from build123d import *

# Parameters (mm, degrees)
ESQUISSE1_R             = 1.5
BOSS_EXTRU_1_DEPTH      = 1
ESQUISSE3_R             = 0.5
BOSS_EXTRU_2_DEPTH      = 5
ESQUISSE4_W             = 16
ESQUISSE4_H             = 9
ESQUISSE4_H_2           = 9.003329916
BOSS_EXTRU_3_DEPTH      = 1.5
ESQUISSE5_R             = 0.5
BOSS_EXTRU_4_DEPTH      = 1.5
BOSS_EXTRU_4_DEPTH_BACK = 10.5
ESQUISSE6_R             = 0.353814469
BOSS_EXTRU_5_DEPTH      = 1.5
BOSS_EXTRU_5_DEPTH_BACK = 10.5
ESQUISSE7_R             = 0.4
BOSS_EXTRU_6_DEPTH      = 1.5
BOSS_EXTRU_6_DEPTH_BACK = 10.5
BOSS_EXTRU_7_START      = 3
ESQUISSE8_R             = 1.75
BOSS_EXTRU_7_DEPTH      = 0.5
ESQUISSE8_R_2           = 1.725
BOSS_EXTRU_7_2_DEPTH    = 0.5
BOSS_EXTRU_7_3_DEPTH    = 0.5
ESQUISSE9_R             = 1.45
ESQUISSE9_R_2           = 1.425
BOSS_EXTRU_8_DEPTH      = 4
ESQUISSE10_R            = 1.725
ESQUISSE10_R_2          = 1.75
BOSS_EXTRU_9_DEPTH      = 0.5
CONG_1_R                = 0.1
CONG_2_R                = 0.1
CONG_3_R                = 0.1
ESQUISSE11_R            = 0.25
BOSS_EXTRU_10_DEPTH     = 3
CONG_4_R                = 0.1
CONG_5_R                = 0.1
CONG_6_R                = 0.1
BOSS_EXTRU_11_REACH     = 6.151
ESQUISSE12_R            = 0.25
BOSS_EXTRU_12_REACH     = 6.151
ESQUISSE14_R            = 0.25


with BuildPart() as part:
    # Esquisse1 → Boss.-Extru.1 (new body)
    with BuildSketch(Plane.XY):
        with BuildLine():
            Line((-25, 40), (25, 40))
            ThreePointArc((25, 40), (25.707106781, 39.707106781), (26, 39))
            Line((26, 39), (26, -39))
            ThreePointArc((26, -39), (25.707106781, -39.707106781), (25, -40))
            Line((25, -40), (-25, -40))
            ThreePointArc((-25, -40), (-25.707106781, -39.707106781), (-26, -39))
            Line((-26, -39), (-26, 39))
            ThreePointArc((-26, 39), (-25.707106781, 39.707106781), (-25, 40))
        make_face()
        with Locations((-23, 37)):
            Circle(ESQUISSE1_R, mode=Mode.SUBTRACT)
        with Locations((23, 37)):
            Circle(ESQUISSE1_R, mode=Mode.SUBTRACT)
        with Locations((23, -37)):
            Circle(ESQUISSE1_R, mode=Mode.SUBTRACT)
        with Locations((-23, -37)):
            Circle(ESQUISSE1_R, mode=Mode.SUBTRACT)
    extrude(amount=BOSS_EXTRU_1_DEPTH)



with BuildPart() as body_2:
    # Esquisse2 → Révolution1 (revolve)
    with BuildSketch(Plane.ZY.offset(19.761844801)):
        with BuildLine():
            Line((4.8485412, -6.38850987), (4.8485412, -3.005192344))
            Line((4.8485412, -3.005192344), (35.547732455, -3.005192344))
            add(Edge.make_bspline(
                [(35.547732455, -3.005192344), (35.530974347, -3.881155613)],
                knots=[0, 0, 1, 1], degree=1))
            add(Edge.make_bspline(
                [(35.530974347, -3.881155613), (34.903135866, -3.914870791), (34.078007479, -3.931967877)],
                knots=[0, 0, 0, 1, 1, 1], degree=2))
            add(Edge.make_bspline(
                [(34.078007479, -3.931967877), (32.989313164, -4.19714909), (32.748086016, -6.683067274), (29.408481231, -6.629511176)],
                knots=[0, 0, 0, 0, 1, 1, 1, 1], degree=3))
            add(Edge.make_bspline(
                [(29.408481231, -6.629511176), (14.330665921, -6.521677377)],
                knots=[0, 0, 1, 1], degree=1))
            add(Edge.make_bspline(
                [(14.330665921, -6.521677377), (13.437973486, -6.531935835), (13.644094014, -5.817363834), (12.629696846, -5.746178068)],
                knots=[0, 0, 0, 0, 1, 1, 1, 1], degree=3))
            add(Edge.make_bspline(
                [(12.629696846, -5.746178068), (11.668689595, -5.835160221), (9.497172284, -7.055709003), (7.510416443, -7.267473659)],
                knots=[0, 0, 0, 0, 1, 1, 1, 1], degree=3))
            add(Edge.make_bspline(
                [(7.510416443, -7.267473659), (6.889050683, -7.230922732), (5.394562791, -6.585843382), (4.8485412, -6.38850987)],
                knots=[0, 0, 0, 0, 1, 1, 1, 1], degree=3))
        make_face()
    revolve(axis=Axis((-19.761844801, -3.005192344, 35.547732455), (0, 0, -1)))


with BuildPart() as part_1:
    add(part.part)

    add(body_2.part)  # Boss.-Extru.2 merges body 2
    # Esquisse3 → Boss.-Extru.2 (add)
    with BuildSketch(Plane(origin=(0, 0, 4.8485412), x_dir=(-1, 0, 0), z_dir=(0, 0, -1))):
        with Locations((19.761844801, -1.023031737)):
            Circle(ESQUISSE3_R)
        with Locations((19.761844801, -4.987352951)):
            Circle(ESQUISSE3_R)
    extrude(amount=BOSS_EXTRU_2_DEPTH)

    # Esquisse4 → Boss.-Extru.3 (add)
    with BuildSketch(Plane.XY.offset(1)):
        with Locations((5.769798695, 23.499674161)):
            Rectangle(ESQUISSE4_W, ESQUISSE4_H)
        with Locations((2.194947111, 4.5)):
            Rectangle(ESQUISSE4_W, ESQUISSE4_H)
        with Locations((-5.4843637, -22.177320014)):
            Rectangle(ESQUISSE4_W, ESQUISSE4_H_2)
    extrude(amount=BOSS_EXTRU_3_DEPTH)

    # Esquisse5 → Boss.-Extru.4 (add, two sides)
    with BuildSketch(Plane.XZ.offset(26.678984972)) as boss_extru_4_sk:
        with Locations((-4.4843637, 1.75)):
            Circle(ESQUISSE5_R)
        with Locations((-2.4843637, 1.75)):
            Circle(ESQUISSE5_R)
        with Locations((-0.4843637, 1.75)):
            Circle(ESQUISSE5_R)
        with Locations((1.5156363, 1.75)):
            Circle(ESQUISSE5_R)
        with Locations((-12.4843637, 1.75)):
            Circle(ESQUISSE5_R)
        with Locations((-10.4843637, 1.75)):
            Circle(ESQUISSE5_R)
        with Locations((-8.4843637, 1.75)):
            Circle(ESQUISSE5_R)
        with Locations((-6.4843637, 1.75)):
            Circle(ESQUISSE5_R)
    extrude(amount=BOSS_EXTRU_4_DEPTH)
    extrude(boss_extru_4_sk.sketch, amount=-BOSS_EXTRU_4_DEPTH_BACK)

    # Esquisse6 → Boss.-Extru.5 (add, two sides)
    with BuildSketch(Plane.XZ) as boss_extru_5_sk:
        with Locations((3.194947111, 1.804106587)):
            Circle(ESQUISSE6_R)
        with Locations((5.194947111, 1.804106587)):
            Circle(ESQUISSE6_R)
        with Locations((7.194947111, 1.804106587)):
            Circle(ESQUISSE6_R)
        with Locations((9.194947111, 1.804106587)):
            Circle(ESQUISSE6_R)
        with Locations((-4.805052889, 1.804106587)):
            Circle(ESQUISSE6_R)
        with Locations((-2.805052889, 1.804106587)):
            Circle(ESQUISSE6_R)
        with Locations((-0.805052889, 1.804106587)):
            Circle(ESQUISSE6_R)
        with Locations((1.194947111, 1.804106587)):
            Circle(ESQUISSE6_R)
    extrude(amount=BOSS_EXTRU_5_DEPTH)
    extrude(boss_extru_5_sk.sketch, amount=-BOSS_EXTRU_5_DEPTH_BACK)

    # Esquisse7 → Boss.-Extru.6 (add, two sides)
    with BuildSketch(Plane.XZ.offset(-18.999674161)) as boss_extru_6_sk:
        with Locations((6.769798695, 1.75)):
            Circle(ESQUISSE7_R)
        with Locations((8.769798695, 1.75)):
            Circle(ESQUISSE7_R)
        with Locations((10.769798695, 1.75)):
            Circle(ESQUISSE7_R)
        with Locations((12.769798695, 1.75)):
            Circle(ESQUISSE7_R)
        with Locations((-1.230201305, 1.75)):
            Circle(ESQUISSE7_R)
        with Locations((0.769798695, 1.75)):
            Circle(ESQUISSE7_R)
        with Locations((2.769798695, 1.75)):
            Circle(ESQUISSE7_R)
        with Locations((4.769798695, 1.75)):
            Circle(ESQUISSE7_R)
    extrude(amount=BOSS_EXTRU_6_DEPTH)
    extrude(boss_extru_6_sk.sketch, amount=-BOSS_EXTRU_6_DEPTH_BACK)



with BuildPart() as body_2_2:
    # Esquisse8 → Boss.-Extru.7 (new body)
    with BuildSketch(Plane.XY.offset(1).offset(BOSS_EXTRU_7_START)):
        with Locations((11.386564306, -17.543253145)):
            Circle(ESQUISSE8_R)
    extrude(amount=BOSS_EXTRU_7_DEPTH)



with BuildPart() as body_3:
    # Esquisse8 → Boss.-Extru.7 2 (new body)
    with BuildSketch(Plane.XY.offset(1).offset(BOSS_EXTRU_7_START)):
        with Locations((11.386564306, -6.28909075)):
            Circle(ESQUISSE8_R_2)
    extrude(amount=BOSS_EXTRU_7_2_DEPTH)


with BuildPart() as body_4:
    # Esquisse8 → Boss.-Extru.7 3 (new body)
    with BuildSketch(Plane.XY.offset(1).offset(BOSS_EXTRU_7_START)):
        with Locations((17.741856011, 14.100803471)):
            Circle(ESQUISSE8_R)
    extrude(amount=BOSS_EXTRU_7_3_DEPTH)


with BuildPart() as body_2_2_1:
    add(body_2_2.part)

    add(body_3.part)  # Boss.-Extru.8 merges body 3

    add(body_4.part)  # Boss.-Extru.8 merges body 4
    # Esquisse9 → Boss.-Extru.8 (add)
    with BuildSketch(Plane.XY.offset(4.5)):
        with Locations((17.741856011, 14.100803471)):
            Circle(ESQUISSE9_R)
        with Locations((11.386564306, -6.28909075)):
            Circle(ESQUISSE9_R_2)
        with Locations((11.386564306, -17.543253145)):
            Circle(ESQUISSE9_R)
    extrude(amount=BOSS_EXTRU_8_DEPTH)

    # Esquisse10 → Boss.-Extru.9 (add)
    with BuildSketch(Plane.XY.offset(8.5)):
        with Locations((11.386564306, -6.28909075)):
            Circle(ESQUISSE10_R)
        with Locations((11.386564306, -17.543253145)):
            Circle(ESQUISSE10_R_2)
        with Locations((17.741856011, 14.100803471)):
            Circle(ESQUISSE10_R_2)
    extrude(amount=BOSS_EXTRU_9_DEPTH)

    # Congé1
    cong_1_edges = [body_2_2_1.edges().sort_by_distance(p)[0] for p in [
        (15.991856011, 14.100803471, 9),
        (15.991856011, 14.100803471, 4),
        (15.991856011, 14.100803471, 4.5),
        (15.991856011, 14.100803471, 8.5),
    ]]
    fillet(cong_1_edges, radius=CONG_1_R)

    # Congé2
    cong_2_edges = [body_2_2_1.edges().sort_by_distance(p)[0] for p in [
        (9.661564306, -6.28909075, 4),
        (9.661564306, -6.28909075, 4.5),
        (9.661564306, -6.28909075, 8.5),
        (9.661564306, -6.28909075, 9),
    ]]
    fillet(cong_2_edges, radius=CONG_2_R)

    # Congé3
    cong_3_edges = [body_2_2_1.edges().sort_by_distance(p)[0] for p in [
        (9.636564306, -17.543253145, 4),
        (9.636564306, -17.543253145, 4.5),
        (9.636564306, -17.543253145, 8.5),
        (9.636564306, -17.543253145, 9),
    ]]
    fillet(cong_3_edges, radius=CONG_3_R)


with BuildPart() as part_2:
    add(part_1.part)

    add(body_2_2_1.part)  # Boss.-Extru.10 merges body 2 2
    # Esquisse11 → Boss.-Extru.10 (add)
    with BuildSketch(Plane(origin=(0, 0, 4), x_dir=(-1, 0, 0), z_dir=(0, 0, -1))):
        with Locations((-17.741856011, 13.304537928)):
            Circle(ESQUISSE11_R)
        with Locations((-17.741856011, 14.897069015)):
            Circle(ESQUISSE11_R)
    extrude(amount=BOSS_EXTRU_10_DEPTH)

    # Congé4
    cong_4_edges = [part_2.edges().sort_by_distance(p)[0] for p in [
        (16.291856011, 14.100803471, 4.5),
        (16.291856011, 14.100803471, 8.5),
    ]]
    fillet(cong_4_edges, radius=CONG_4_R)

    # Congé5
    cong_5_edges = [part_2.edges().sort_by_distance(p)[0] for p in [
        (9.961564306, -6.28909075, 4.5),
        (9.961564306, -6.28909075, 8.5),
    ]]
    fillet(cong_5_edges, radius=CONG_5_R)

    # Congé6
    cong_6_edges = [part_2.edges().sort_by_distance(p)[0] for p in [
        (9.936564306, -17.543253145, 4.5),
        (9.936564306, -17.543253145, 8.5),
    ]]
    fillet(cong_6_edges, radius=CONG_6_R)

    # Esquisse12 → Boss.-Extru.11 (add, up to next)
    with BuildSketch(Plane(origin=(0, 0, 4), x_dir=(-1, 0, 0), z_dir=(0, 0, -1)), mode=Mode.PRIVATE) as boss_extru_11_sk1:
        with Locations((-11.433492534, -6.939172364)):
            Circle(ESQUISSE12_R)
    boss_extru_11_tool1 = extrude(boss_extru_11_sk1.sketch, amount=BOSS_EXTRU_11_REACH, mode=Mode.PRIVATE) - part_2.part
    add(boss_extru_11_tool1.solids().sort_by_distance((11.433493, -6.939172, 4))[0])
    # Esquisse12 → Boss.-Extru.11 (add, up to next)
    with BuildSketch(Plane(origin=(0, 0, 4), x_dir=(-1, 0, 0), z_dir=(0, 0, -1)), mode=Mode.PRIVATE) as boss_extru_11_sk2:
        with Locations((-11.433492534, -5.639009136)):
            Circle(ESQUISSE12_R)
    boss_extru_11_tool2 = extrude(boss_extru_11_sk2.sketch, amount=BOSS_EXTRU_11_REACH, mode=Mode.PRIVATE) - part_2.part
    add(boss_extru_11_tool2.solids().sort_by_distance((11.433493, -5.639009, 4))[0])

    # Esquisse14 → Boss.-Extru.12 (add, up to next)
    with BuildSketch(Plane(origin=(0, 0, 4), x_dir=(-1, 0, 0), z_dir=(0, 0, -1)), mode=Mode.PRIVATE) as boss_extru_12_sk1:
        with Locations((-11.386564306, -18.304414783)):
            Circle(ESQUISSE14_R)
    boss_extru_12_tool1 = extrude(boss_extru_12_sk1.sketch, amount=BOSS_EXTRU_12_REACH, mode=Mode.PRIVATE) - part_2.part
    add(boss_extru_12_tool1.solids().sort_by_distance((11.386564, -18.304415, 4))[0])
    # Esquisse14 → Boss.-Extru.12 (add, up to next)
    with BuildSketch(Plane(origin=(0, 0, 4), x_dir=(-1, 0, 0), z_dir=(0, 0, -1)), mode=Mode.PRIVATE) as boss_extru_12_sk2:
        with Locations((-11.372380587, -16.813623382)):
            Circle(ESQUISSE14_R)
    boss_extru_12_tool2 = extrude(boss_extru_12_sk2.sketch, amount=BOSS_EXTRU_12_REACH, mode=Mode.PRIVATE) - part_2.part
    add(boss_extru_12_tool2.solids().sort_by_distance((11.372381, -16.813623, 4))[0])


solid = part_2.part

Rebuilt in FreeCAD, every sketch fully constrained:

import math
import FreeCAD as App
import Part
import Sketcher
Q = App.Units.Quantity


def edges_at(feature, points):
    """Names of the edges that pass closest to the given points."""
    edges = feature.Shape.Edges
    near = lambda p: min(range(len(edges)), key=lambda i: edges[i].distToShape(Part.Vertex(*p))[0])
    return sorted({f"Edge{near(p) + 1}" for p in points})


def add_polygon(sketch, points):
    """Adds a closed chain of lines whose ends are joined by coincident constraints."""
    first, n = sketch.GeometryCount, len(points)
    for a, b in zip(points, points[1:] + points[:1]):
        sketch.addGeometry(Part.LineSegment(App.Vector(*a, 0), App.Vector(*b, 0)), False)
    for i in range(n):
        sketch.addConstraint(Sketcher.Constraint("Coincident", first + i, 2, first + (i + 1) % n, 1))

doc = App.newDocument("Part")
body = doc.addObject("PartDesign::Body", "Body")

sketch1 = body.newObject("Sketcher::SketchObject", "Sketch")
sketch1.AttachmentSupport = (doc.getObject("XY_Plane"), [""])
sketch1.MapMode = "FlatFace"
sketch1.addGeometry(Part.LineSegment(App.Vector(25, 40, 0), App.Vector(-25, 40, 0)), False)
sketch1.addGeometry(Part.ArcOfCircle(Part.Circle(App.Vector(-25, 39, 0), App.Vector(0, 0, 1), 1), math.radians(90), math.radians(180)), False)
sketch1.addGeometry(Part.LineSegment(App.Vector(-26, 39, 0), App.Vector(-26, -39, 0)), False)
sketch1.addGeometry(Part.ArcOfCircle(Part.Circle(App.Vector(-25, -39, 0), App.Vector(0, 0, 1), 1), math.radians(-180), math.radians(-90)), False)
sketch1.addGeometry(Part.LineSegment(App.Vector(-25, -40, 0), App.Vector(25, -40, 0)), False)
sketch1.addGeometry(Part.ArcOfCircle(Part.Circle(App.Vector(25, -39, 0), App.Vector(0, 0, 1), 1), math.radians(-90), math.radians(0)), False)
sketch1.addGeometry(Part.LineSegment(App.Vector(26, -39, 0), App.Vector(26, 39, 0)), False)
sketch1.addGeometry(Part.ArcOfCircle(Part.Circle(App.Vector(25, 39, 0), App.Vector(0, 0, 1), 1), math.radians(0), math.radians(90)), False)
sketch1.addGeometry(Part.Circle(App.Vector(23, -37, 0), App.Vector(0, 0, 1), 1.5), False)
sketch1.addGeometry(Part.Circle(App.Vector(-23, -37, 0), App.Vector(0, 0, 1), 1.5), False)
sketch1.addGeometry(Part.Circle(App.Vector(23, 37, 0), App.Vector(0, 0, 1), 1.5), False)
sketch1.addGeometry(Part.Circle(App.Vector(-23, 37, 0), App.Vector(0, 0, 1), 1.5), False)
sketch1.addConstraint(Sketcher.Constraint("Tangent", 0, 2, 1, 1))
sketch1.addConstraint(Sketcher.Constraint("Tangent", 1, 2, 2, 1))
sketch1.addConstraint(Sketcher.Constraint("Tangent", 2, 2, 3, 1))
sketch1.addConstraint(Sketcher.Constraint("Tangent", 3, 2, 4, 1))
sketch1.addConstraint(Sketcher.Constraint("Tangent", 4, 2, 5, 1))
sketch1.addConstraint(Sketcher.Constraint("Tangent", 5, 2, 6, 1))
sketch1.addConstraint(Sketcher.Constraint("Tangent", 6, 2, 7, 1))
sketch1.addConstraint(Sketcher.Constraint("Tangent", 7, 2, 0, 1))
sketch1.addConstraint(Sketcher.Constraint("Horizontal", 0))
sketch1.addConstraint(Sketcher.Constraint("Vertical", 2))
sketch1.addConstraint(Sketcher.Constraint("Horizontal", 4))
sketch1.addConstraint(Sketcher.Constraint("Vertical", 6))
sketch1.addConstraint(Sketcher.Constraint("Equal", 1, 3))
sketch1.addConstraint(Sketcher.Constraint("Equal", 3, 5))
sketch1.addConstraint(Sketcher.Constraint("Equal", 5, 7))
sketch1.addConstraint(Sketcher.Constraint("Equal", 8, 9))
sketch1.addConstraint(Sketcher.Constraint("Equal", 9, 10))
sketch1.addConstraint(Sketcher.Constraint("Equal", 10, 11))
sketch1.addConstraint(Sketcher.Constraint("Symmetric", 1, 3, 5, 3, -1, 1))
sketch1.addConstraint(Sketcher.Constraint("Symmetric", 9, 3, 10, 3, -1, 1))
sketch1.addConstraint(Sketcher.Constraint("Symmetric", 8, 3, 11, 3, -1, 1))
sketch1.addConstraint(Sketcher.Constraint("Symmetric", 8, 3, 9, 3, -2))
sketch1.addConstraint(Sketcher.Constraint("Diameter", 8, Q("3 mm")))
sketch1.addConstraint(Sketcher.Constraint("Radius", 1, Q("1 mm")))
sketch1.addConstraint(Sketcher.Constraint("DistanceX", 0, 2, 0, 1, Q("50 mm")))
sketch1.addConstraint(Sketcher.Constraint("DistanceY", 2, 2, 2, 1, Q("78 mm")))
sketch1.addConstraint(Sketcher.Constraint("DistanceX", -1, 1, 8, 3, Q("23 mm")))
sketch1.addConstraint(Sketcher.Constraint("DistanceY", 8, 3, -1, 1, Q("37 mm")))
pad1 = body.newObject("PartDesign::Pad", "Pad")
pad1.Profile = sketch1
pad1.Length = 1
body2 = doc.addObject("PartDesign::Body", "Body001")

sketch2 = body2.newObject("Sketcher::SketchObject", "Sketch001")
sketch2.AttachmentSupport = (doc.getObject("YZ_Plane001"), [""])
sketch2.MapMode = "FlatFace"
sketch2.AttachmentOffset = App.Placement(App.Vector(0, 0, -19.761845), App.Rotation())
sketch2.addGeometry(Part.LineSegment(App.Vector(-3.005192, 4.848541, 0), App.Vector(-6.38851, 4.848541, 0)), False)
sketch2.addGeometry(Part.BSplineCurve([App.Vector(-7.267474, 7.510416, 0), App.Vector(-7.230923, 6.889051, 0), App.Vector(-6.585843, 5.394563, 0), App.Vector(-6.38851, 4.848541, 0)], [4, 4], [0, 1], False, 3, [1, 1, 1, 1], False), False)
sketch2.addGeometry(Part.BSplineCurve([App.Vector(-5.746178, 12.629697, 0), App.Vector(-5.83516, 11.66869, 0), App.Vector(-7.055709, 9.497172, 0), App.Vector(-7.267474, 7.510416, 0)], [4, 4], [0, 1], False, 3, [1, 1, 1, 1], False), False)
sketch2.addGeometry(Part.BSplineCurve([App.Vector(-6.521677, 14.330666, 0), App.Vector(-6.531936, 13.437973, 0), App.Vector(-5.817364, 13.644094, 0), App.Vector(-5.746178, 12.629697, 0)], [4, 4], [0, 1], False, 3, [1, 1, 1, 1], False), False)
sketch2.addGeometry(Part.BSplineCurve([App.Vector(-6.629511, 29.408481, 0), App.Vector(-6.521677, 14.330666, 0)], [2, 2], [0, 1], False, 1, [1, 1], False), False)
sketch2.addGeometry(Part.BSplineCurve([App.Vector(-3.931968, 34.078007, 0), App.Vector(-4.197149, 32.989313, 0), App.Vector(-6.683067, 32.748086, 0), App.Vector(-6.629511, 29.408481, 0)], [4, 4], [0, 1], False, 3, [1, 1, 1, 1], False), False)
sketch2.addGeometry(Part.BSplineCurve([App.Vector(-3.881156, 35.530974, 0), App.Vector(-3.914871, 34.903136, 0), App.Vector(-3.931968, 34.078007, 0)], [3, 3], [0, 1], False, 2, [1, 1, 1], False), False)
sketch2.addGeometry(Part.BSplineCurve([App.Vector(-3.005192, 35.547732, 0), App.Vector(-3.881156, 35.530974, 0)], [2, 2], [0, 1], False, 1, [1, 1], False), False)
sketch2.addGeometry(Part.LineSegment(App.Vector(-3.005192, 35.547732, 0), App.Vector(-3.005192, 4.848541, 0)), False)
sketch2.addGeometry(Part.LineSegment(App.Vector(-3.005192, 35.547732, 0), App.Vector(-3.005192, 4.848541, 0)), True)
sketch2.addConstraint(Sketcher.Constraint("Block", 1))
sketch2.addConstraint(Sketcher.Constraint("Block", 2))
sketch2.addConstraint(Sketcher.Constraint("Block", 3))
sketch2.addConstraint(Sketcher.Constraint("Block", 4))
sketch2.addConstraint(Sketcher.Constraint("Block", 5))
sketch2.addConstraint(Sketcher.Constraint("Block", 6))
sketch2.addConstraint(Sketcher.Constraint("Block", 7))
sketch2.addConstraint(Sketcher.Constraint("Coincident", 0, 2, 1, 2))
sketch2.addConstraint(Sketcher.Constraint("Coincident", 7, 1, 8, 1))
sketch2.addConstraint(Sketcher.Constraint("Coincident", 8, 2, 0, 1))
sketch2.addConstraint(Sketcher.Constraint("Horizontal", 0))
sketch2.addConstraint(Sketcher.Constraint("Vertical", 8))
sketch2.addConstraint(Sketcher.Constraint("Vertical", 9))
sketch2.addConstraint(Sketcher.Constraint("Coincident", 9, 2, 8, 2))
sketch2.addConstraint(Sketcher.Constraint("Equal", 8, 9))
revolution = body2.newObject("PartDesign::Revolution", "Revolution")
revolution.Profile = sketch2
revolution.ReferenceAxis = (sketch2, ["Axis0"])
revolution.Angle = 360
body.AllowCompound = True
doc.recompute()

boolean = body.newObject("PartDesign::Boolean", "Boolean")
boolean.Type = "Fuse"
boolean.addObjects([body2])

sketch3 = body.newObject("Sketcher::SketchObject", "Sketch002")
sketch3.AttachmentSupport = (doc.getObject("XY_Plane"), [""])
sketch3.MapMode = "FlatFace"
sketch3.AttachmentOffset = App.Placement(App.Vector(0, 0, 4.848541), App.Rotation())
sketch3.addGeometry(Part.Circle(App.Vector(-19.761845, -1.023032, 0), App.Vector(0, 0, 1), 0.5), False)
sketch3.addGeometry(Part.Circle(App.Vector(-19.761845, -4.987353, 0), App.Vector(0, 0, 1), 0.5), False)
sketch3.addConstraint(Sketcher.Constraint("Equal", 0, 1))
sketch3.addConstraint(Sketcher.Constraint("Vertical", 0, 3, 1, 3))
sketch3.addConstraint(Sketcher.Constraint("Diameter", 0, Q("1 mm")))
sketch3.addConstraint(Sketcher.Constraint("DistanceY", 0, 3, -1, 1, Q("1.023032 mm")))
sketch3.addConstraint(Sketcher.Constraint("DistanceY", 1, 3, 0, 3, Q("3.964321 mm")))
sketch3.addConstraint(Sketcher.Constraint("DistanceX", 0, 3, -1, 1, Q("19.761845 mm")))
pad2 = body.newObject("PartDesign::Pad", "Pad001")
pad2.Profile = sketch3
pad2.Length = 5
pad2.Reversed = True

sketch4 = body.newObject("Sketcher::SketchObject", "Sketch003")
sketch4.AttachmentSupport = (doc.getObject("XY_Plane"), [""])
sketch4.MapMode = "FlatFace"
sketch4.AttachmentOffset = App.Placement(App.Vector(0, 0, 1), App.Rotation())
add_polygon(sketch4, [(-2.230201, 27.999674), (-2.230201, 18.999674), (13.769799, 18.999674), (13.769799, 27.999674)])
add_polygon(sketch4, [(-5.805053, 9), (-5.805053, 0), (10.194947, 0), (10.194947, 9)])
add_polygon(sketch4, [(-13.484364, -17.675655), (-13.484364, -26.678985), (2.515636, -26.678985), (2.515636, -17.675655)])
sketch4.addConstraint(Sketcher.Constraint("Vertical", 0))
sketch4.addConstraint(Sketcher.Constraint("Horizontal", 1))
sketch4.addConstraint(Sketcher.Constraint("Vertical", 2))
sketch4.addConstraint(Sketcher.Constraint("Horizontal", 3))
sketch4.addConstraint(Sketcher.Constraint("Vertical", 4))
sketch4.addConstraint(Sketcher.Constraint("Horizontal", 5))
sketch4.addConstraint(Sketcher.Constraint("Vertical", 6))
sketch4.addConstraint(Sketcher.Constraint("Horizontal", 7))
sketch4.addConstraint(Sketcher.Constraint("Vertical", 8))
sketch4.addConstraint(Sketcher.Constraint("Horizontal", 9))
sketch4.addConstraint(Sketcher.Constraint("Vertical", 10))
sketch4.addConstraint(Sketcher.Constraint("Horizontal", 11))
sketch4.addConstraint(Sketcher.Constraint("PointOnObject", 4, 2, -1))
sketch4.addConstraint(Sketcher.Constraint("Equal", 3, 5))
sketch4.addConstraint(Sketcher.Constraint("Equal", 7, 9))
sketch4.addConstraint(Sketcher.Constraint("Equal", 2, 4))
sketch4.addConstraint(Sketcher.Constraint("DistanceX", 1, 1, 1, 2, Q("16 mm")))
sketch4.addConstraint(Sketcher.Constraint("DistanceY", 0, 2, 0, 1, Q("9 mm")))
sketch4.addConstraint(Sketcher.Constraint("DistanceY", 8, 2, 8, 1, Q("9.00333 mm")))
sketch4.addConstraint(Sketcher.Constraint("DistanceX", 0, 2, -1, 1, Q("2.230201 mm")))
sketch4.addConstraint(Sketcher.Constraint("DistanceX", 4, 2, 0, 2, Q("3.574852 mm")))
sketch4.addConstraint(Sketcher.Constraint("DistanceX", 8, 2, 4, 2, Q("7.679311 mm")))
sketch4.addConstraint(Sketcher.Constraint("DistanceY", 8, 2, 0, 2, Q("45.678659 mm")))
sketch4.addConstraint(Sketcher.Constraint("DistanceY", -1, 1, 0, 2, Q("18.999674 mm")))
pad3 = body.newObject("PartDesign::Pad", "Pad002")
pad3.Profile = sketch4
pad3.Length = 1.5

sketch5 = body.newObject("Sketcher::SketchObject", "Sketch004")
sketch5.AttachmentSupport = (doc.getObject("XZ_Plane"), [""])
sketch5.MapMode = "FlatFace"
sketch5.AttachmentOffset = App.Placement(App.Vector(0, 0, 26.678985), App.Rotation())
sketch5.addGeometry(Part.Circle(App.Vector(-4.484364, 1.75, 0), App.Vector(0, 0, 1), 0.5), False)
sketch5.addGeometry(Part.Circle(App.Vector(-2.484364, 1.75, 0), App.Vector(0, 0, 1), 0.5), False)
sketch5.addGeometry(Part.Circle(App.Vector(-0.484364, 1.75, 0), App.Vector(0, 0, 1), 0.5), False)
sketch5.addGeometry(Part.Circle(App.Vector(1.515636, 1.75, 0), App.Vector(0, 0, 1), 0.5), False)
sketch5.addGeometry(Part.Circle(App.Vector(-12.484364, 1.75, 0), App.Vector(0, 0, 1), 0.5), False)
sketch5.addGeometry(Part.Circle(App.Vector(-10.484364, 1.75, 0), App.Vector(0, 0, 1), 0.5), False)
sketch5.addGeometry(Part.Circle(App.Vector(-8.484364, 1.75, 0), App.Vector(0, 0, 1), 0.5), False)
sketch5.addGeometry(Part.Circle(App.Vector(-6.484364, 1.75, 0), App.Vector(0, 0, 1), 0.5), False)
sketch5.addConstraint(Sketcher.Constraint("Equal", 0, 1))
sketch5.addConstraint(Sketcher.Constraint("Equal", 1, 2))
sketch5.addConstraint(Sketcher.Constraint("Equal", 2, 3))
sketch5.addConstraint(Sketcher.Constraint("Equal", 3, 4))
sketch5.addConstraint(Sketcher.Constraint("Equal", 4, 5))
sketch5.addConstraint(Sketcher.Constraint("Equal", 5, 6))
sketch5.addConstraint(Sketcher.Constraint("Equal", 6, 7))
sketch5.addConstraint(Sketcher.Constraint("Horizontal", 0, 3, 1, 3))
sketch5.addConstraint(Sketcher.Constraint("Horizontal", 1, 3, 2, 3))
sketch5.addConstraint(Sketcher.Constraint("Horizontal", 2, 3, 3, 3))
sketch5.addConstraint(Sketcher.Constraint("Horizontal", 3, 3, 4, 3))
sketch5.addConstraint(Sketcher.Constraint("Horizontal", 4, 3, 5, 3))
sketch5.addConstraint(Sketcher.Constraint("Horizontal", 5, 3, 6, 3))
sketch5.addConstraint(Sketcher.Constraint("Horizontal", 6, 3, 7, 3))
sketch5.addConstraint(Sketcher.Constraint("Diameter", 0, Q("1 mm")))
sketch5.addConstraint(Sketcher.Constraint("DistanceX", 0, 3, 1, 3, Q("2 mm")))
sketch5.addConstraint(Sketcher.Constraint("DistanceX", 1, 3, 2, 3, Q("2 mm")))
sketch5.addConstraint(Sketcher.Constraint("DistanceX", 2, 3, 3, 3, Q("2 mm")))
sketch5.addConstraint(Sketcher.Constraint("DistanceX", 4, 3, 0, 3, Q("8 mm")))
sketch5.addConstraint(Sketcher.Constraint("DistanceX", 4, 3, 5, 3, Q("2 mm")))
sketch5.addConstraint(Sketcher.Constraint("DistanceX", 5, 3, 6, 3, Q("2 mm")))
sketch5.addConstraint(Sketcher.Constraint("DistanceX", 6, 3, 7, 3, Q("2 mm")))
sketch5.addConstraint(Sketcher.Constraint("DistanceY", -1, 1, 0, 3, Q("1.75 mm")))
sketch5.addConstraint(Sketcher.Constraint("DistanceX", 0, 3, -1, 1, Q("4.484364 mm")))
pad4 = body.newObject("PartDesign::Pad", "Pad003")
pad4.Profile = sketch5
pad4.Type = "TwoLengths"
pad4.Length = 1.5
pad4.Length2 = 10.5

sketch6 = body.newObject("Sketcher::SketchObject", "Sketch005")
sketch6.AttachmentSupport = (doc.getObject("XZ_Plane"), [""])
sketch6.MapMode = "FlatFace"
sketch6.addGeometry(Part.Circle(App.Vector(3.194947, 1.804107, 0), App.Vector(0, 0, 1), 0.353814), False)
sketch6.addGeometry(Part.Circle(App.Vector(5.194947, 1.804107, 0), App.Vector(0, 0, 1), 0.353814), False)
sketch6.addGeometry(Part.Circle(App.Vector(7.194947, 1.804107, 0), App.Vector(0, 0, 1), 0.353814), False)
sketch6.addGeometry(Part.Circle(App.Vector(9.194947, 1.804107, 0), App.Vector(0, 0, 1), 0.353814), False)
sketch6.addGeometry(Part.Circle(App.Vector(-4.805053, 1.804107, 0), App.Vector(0, 0, 1), 0.353814), False)
sketch6.addGeometry(Part.Circle(App.Vector(-2.805053, 1.804107, 0), App.Vector(0, 0, 1), 0.353814), False)
sketch6.addGeometry(Part.Circle(App.Vector(-0.805053, 1.804107, 0), App.Vector(0, 0, 1), 0.353814), False)
sketch6.addGeometry(Part.Circle(App.Vector(1.194947, 1.804107, 0), App.Vector(0, 0, 1), 0.353814), False)
sketch6.addConstraint(Sketcher.Constraint("Equal", 0, 1))
sketch6.addConstraint(Sketcher.Constraint("Equal", 1, 2))
sketch6.addConstraint(Sketcher.Constraint("Equal", 2, 3))
sketch6.addConstraint(Sketcher.Constraint("Equal", 3, 4))
sketch6.addConstraint(Sketcher.Constraint("Equal", 4, 5))
sketch6.addConstraint(Sketcher.Constraint("Equal", 5, 6))
sketch6.addConstraint(Sketcher.Constraint("Equal", 6, 7))
sketch6.addConstraint(Sketcher.Constraint("Horizontal", 0, 3, 1, 3))
sketch6.addConstraint(Sketcher.Constraint("Horizontal", 1, 3, 2, 3))
sketch6.addConstraint(Sketcher.Constraint("Horizontal", 2, 3, 3, 3))
sketch6.addConstraint(Sketcher.Constraint("Horizontal", 3, 3, 4, 3))
sketch6.addConstraint(Sketcher.Constraint("Horizontal", 4, 3, 5, 3))
sketch6.addConstraint(Sketcher.Constraint("Horizontal", 5, 3, 6, 3))
sketch6.addConstraint(Sketcher.Constraint("Horizontal", 6, 3, 7, 3))
sketch6.addConstraint(Sketcher.Constraint("DistanceX", 0, 3, 1, 3, Q("2 mm")))
sketch6.addConstraint(Sketcher.Constraint("DistanceX", 1, 3, 2, 3, Q("2 mm")))
sketch6.addConstraint(Sketcher.Constraint("DistanceX", 2, 3, 3, 3, Q("2 mm")))
sketch6.addConstraint(Sketcher.Constraint("DistanceX", 4, 3, 0, 3, Q("8 mm")))
sketch6.addConstraint(Sketcher.Constraint("DistanceX", 4, 3, 5, 3, Q("2 mm")))
sketch6.addConstraint(Sketcher.Constraint("DistanceX", 5, 3, 6, 3, Q("2 mm")))
sketch6.addConstraint(Sketcher.Constraint("DistanceX", 7, 3, 0, 3, Q("2 mm")))
sketch6.addConstraint(Sketcher.Constraint("Diameter", 0, Q("0.707629 mm")))
sketch6.addConstraint(Sketcher.Constraint("DistanceX", -1, 1, 0, 3, Q("3.194947 mm")))
sketch6.addConstraint(Sketcher.Constraint("DistanceY", -1, 1, 0, 3, Q("1.804107 mm")))
pad5 = body.newObject("PartDesign::Pad", "Pad004")
pad5.Profile = sketch6
pad5.Type = "TwoLengths"
pad5.Length = 1.5
pad5.Length2 = 10.5

sketch7 = body.newObject("Sketcher::SketchObject", "Sketch006")
sketch7.AttachmentSupport = (doc.getObject("XZ_Plane"), [""])
sketch7.MapMode = "FlatFace"
sketch7.AttachmentOffset = App.Placement(App.Vector(0, 0, -18.999674), App.Rotation())
sketch7.addGeometry(Part.Circle(App.Vector(6.769799, 1.75, 0), App.Vector(0, 0, 1), 0.4), False)
sketch7.addGeometry(Part.Circle(App.Vector(8.769799, 1.75, 0), App.Vector(0, 0, 1), 0.4), False)
sketch7.addGeometry(Part.Circle(App.Vector(10.769799, 1.75, 0), App.Vector(0, 0, 1), 0.4), False)
sketch7.addGeometry(Part.Circle(App.Vector(12.769799, 1.75, 0), App.Vector(0, 0, 1), 0.4), False)
sketch7.addGeometry(Part.Circle(App.Vector(-1.230201, 1.75, 0), App.Vector(0, 0, 1), 0.4), False)
sketch7.addGeometry(Part.Circle(App.Vector(0.769799, 1.75, 0), App.Vector(0, 0, 1), 0.4), False)
sketch7.addGeometry(Part.Circle(App.Vector(2.769799, 1.75, 0), App.Vector(0, 0, 1), 0.4), False)
sketch7.addGeometry(Part.Circle(App.Vector(4.769799, 1.75, 0), App.Vector(0, 0, 1), 0.4), False)
sketch7.addConstraint(Sketcher.Constraint("Equal", 0, 1))
sketch7.addConstraint(Sketcher.Constraint("Equal", 1, 2))
sketch7.addConstraint(Sketcher.Constraint("Equal", 2, 3))
sketch7.addConstraint(Sketcher.Constraint("Equal", 3, 4))
sketch7.addConstraint(Sketcher.Constraint("Equal", 4, 5))
sketch7.addConstraint(Sketcher.Constraint("Equal", 5, 6))
sketch7.addConstraint(Sketcher.Constraint("Equal", 6, 7))
sketch7.addConstraint(Sketcher.Constraint("Horizontal", 0, 3, 1, 3))
sketch7.addConstraint(Sketcher.Constraint("Horizontal", 1, 3, 2, 3))
sketch7.addConstraint(Sketcher.Constraint("Horizontal", 2, 3, 3, 3))
sketch7.addConstraint(Sketcher.Constraint("Horizontal", 3, 3, 4, 3))
sketch7.addConstraint(Sketcher.Constraint("Horizontal", 4, 3, 5, 3))
sketch7.addConstraint(Sketcher.Constraint("Horizontal", 5, 3, 6, 3))
sketch7.addConstraint(Sketcher.Constraint("Horizontal", 6, 3, 7, 3))
sketch7.addConstraint(Sketcher.Constraint("Diameter", 0, Q("0.8 mm")))
sketch7.addConstraint(Sketcher.Constraint("DistanceX", 0, 3, 1, 3, Q("2 mm")))
sketch7.addConstraint(Sketcher.Constraint("DistanceX", 1, 3, 2, 3, Q("2 mm")))
sketch7.addConstraint(Sketcher.Constraint("DistanceX", 2, 3, 3, 3, Q("2 mm")))
sketch7.addConstraint(Sketcher.Constraint("DistanceX", 4, 3, 0, 3, Q("8 mm")))
sketch7.addConstraint(Sketcher.Constraint("DistanceX", 4, 3, 5, 3, Q("2 mm")))
sketch7.addConstraint(Sketcher.Constraint("DistanceX", 5, 3, 6, 3, Q("2 mm")))
sketch7.addConstraint(Sketcher.Constraint("DistanceX", 7, 3, 0, 3, Q("2 mm")))
sketch7.addConstraint(Sketcher.Constraint("DistanceY", -1, 1, 0, 3, Q("1.75 mm")))
sketch7.addConstraint(Sketcher.Constraint("DistanceX", -1, 1, 0, 3, Q("6.769799 mm")))
pad6 = body.newObject("PartDesign::Pad", "Pad005")
pad6.Profile = sketch7
pad6.Type = "TwoLengths"
pad6.Length = 1.5
pad6.Length2 = 10.5
body3 = doc.addObject("PartDesign::Body", "Body002")

sketch8 = body3.newObject("Sketcher::SketchObject", "Sketch007")
sketch8.AttachmentSupport = (doc.getObject("XY_Plane002"), [""])
sketch8.MapMode = "FlatFace"
sketch8.AttachmentOffset = App.Placement(App.Vector(0, 0, 4), App.Rotation())
sketch8.addGeometry(Part.Circle(App.Vector(11.386564, -17.543253, 0), App.Vector(0, 0, 1), 1.75), False)
sketch8.addConstraint(Sketcher.Constraint("Diameter", 0, Q("3.5 mm")))
sketch8.addConstraint(Sketcher.Constraint("DistanceX", -1, 1, 0, 3, Q("11.386564 mm")))
sketch8.addConstraint(Sketcher.Constraint("DistanceY", 0, 3, -1, 1, Q("17.543253 mm")))
pad7 = body3.newObject("PartDesign::Pad", "Pad006")
pad7.Profile = sketch8
pad7.Length = 0.5
body4 = doc.addObject("PartDesign::Body", "Body003")

sketch9 = body4.newObject("Sketcher::SketchObject", "Sketch008")
sketch9.AttachmentSupport = (doc.getObject("XY_Plane003"), [""])
sketch9.MapMode = "FlatFace"
sketch9.AttachmentOffset = App.Placement(App.Vector(0, 0, 4), App.Rotation())
sketch9.addGeometry(Part.Circle(App.Vector(11.386564, -6.289091, 0), App.Vector(0, 0, 1), 1.725), False)
sketch9.addConstraint(Sketcher.Constraint("Diameter", 0, Q("3.45 mm")))
sketch9.addConstraint(Sketcher.Constraint("DistanceY", 0, 3, -1, 1, Q("6.289091 mm")))
sketch9.addConstraint(Sketcher.Constraint("DistanceX", -1, 1, 0, 3, Q("11.386564 mm")))
pad8 = body4.newObject("PartDesign::Pad", "Pad007")
pad8.Profile = sketch9
pad8.Length = 0.5
body5 = doc.addObject("PartDesign::Body", "Body004")

sketch10 = body5.newObject("Sketcher::SketchObject", "Sketch009")
sketch10.AttachmentSupport = (doc.getObject("XY_Plane004"), [""])
sketch10.MapMode = "FlatFace"
sketch10.AttachmentOffset = App.Placement(App.Vector(0, 0, 4), App.Rotation())
sketch10.addGeometry(Part.Circle(App.Vector(17.741856, 14.100803, 0), App.Vector(0, 0, 1), 1.75), False)
sketch10.addConstraint(Sketcher.Constraint("Diameter", 0, Q("3.5 mm")))
sketch10.addConstraint(Sketcher.Constraint("DistanceX", -1, 1, 0, 3, Q("17.741856 mm")))
sketch10.addConstraint(Sketcher.Constraint("DistanceY", -1, 1, 0, 3, Q("14.100803 mm")))
pad9 = body5.newObject("PartDesign::Pad", "Pad008")
pad9.Profile = sketch10
pad9.Length = 0.5
body3.AllowCompound = True
doc.recompute()

boolean2 = body3.newObject("PartDesign::Boolean", "Boolean001")
boolean2.Type = "Fuse"
boolean2.addObjects([body4])
doc.recompute()

boolean3 = body3.newObject("PartDesign::Boolean", "Boolean002")
boolean3.Type = "Fuse"
boolean3.addObjects([body5])

sketch11 = body3.newObject("Sketcher::SketchObject", "Sketch010")
sketch11.AttachmentSupport = (doc.getObject("XY_Plane002"), [""])
sketch11.MapMode = "FlatFace"
sketch11.AttachmentOffset = App.Placement(App.Vector(0, 0, 4.5), App.Rotation())
sketch11.addGeometry(Part.Circle(App.Vector(17.741856, 14.100803, 0), App.Vector(0, 0, 1), 1.45), False)
sketch11.addGeometry(Part.Circle(App.Vector(11.386564, -6.289091, 0), App.Vector(0, 0, 1), 1.425), False)
sketch11.addGeometry(Part.Circle(App.Vector(11.386564, -17.543253, 0), App.Vector(0, 0, 1), 1.45), False)
sketch11.addConstraint(Sketcher.Constraint("Equal", 0, 2))
sketch11.addConstraint(Sketcher.Constraint("Vertical", 1, 3, 2, 3))
sketch11.addConstraint(Sketcher.Constraint("Diameter", 0, Q("2.9 mm")))
sketch11.addConstraint(Sketcher.Constraint("Diameter", 1, Q("2.85 mm")))
sketch11.addConstraint(Sketcher.Constraint("DistanceY", 1, 3, -1, 1, Q("6.289091 mm")))
sketch11.addConstraint(Sketcher.Constraint("DistanceX", 1, 3, 0, 3, Q("6.355292 mm")))
sketch11.addConstraint(Sketcher.Constraint("DistanceX", -1, 1, 0, 3, Q("17.741856 mm")))
sketch11.addConstraint(Sketcher.Constraint("DistanceY", -1, 1, 0, 3, Q("14.100803 mm")))
sketch11.addConstraint(Sketcher.Constraint("DistanceY", 2, 3, -1, 1, Q("17.543253 mm")))
pad10 = body3.newObject("PartDesign::Pad", "Pad009")
pad10.Profile = sketch11
pad10.Length = 4

sketch12 = body3.newObject("Sketcher::SketchObject", "Sketch011")
sketch12.AttachmentSupport = (doc.getObject("XY_Plane002"), [""])
sketch12.MapMode = "FlatFace"
sketch12.AttachmentOffset = App.Placement(App.Vector(0, 0, 8.5), App.Rotation())
sketch12.addGeometry(Part.Circle(App.Vector(11.386564, -6.289091, 0), App.Vector(0, 0, 1), 1.725), False)
sketch12.addGeometry(Part.Circle(App.Vector(11.386564, -17.543253, 0), App.Vector(0, 0, 1), 1.75), False)
sketch12.addGeometry(Part.Circle(App.Vector(17.741856, 14.100803, 0), App.Vector(0, 0, 1), 1.75), False)
sketch12.addConstraint(Sketcher.Constraint("Equal", 1, 2))
sketch12.addConstraint(Sketcher.Constraint("Vertical", 0, 3, 1, 3))
sketch12.addConstraint(Sketcher.Constraint("Diameter", 1, Q("3.5 mm")))
sketch12.addConstraint(Sketcher.Constraint("Diameter", 0, Q("3.45 mm")))
sketch12.addConstraint(Sketcher.Constraint("DistanceY", 0, 3, -1, 1, Q("6.289091 mm")))
sketch12.addConstraint(Sketcher.Constraint("DistanceX", 0, 3, 2, 3, Q("6.355292 mm")))
sketch12.addConstraint(Sketcher.Constraint("DistanceX", -1, 1, 0, 3, Q("11.386564 mm")))
sketch12.addConstraint(Sketcher.Constraint("DistanceY", 1, 3, -1, 1, Q("17.543253 mm")))
sketch12.addConstraint(Sketcher.Constraint("DistanceY", -1, 1, 2, 3, Q("14.100803 mm")))
pad11 = body3.newObject("PartDesign::Pad", "Pad010")
pad11.Profile = sketch12
pad11.Length = 0.5
doc.recompute()

fillet = body3.newObject("PartDesign::Fillet", "Fillet")
fillet.Base = (pad11, edges_at(pad11, [
    (15.992, 14.101, 9),
    (15.992, 14.101, 4),
    (15.992, 14.101, 4.5),
    (15.992, 14.101, 8.5),
]))
fillet.Radius = 0.1
doc.recompute()

fillet2 = body3.newObject("PartDesign::Fillet", "Fillet001")
fillet2.Base = (fillet, edges_at(fillet, [
    (9.662, -6.289, 4),
    (9.662, -6.289, 4.5),
    (9.662, -6.289, 8.5),
    (9.662, -6.289, 9),
]))
fillet2.Radius = 0.1
doc.recompute()

fillet3 = body3.newObject("PartDesign::Fillet", "Fillet002")
fillet3.Base = (fillet2, edges_at(fillet2, [
    (9.637, -17.543, 4),
    (9.637, -17.543, 4.5),
    (9.637, -17.543, 8.5),
    (9.637, -17.543, 9),
]))
fillet3.Radius = 0.1
body.AllowCompound = True
doc.recompute()

boolean4 = body.newObject("PartDesign::Boolean", "Boolean003")
boolean4.Type = "Fuse"
boolean4.addObjects([body3])

sketch13 = body.newObject("Sketcher::SketchObject", "Sketch012")
sketch13.AttachmentSupport = (doc.getObject("XY_Plane"), [""])
sketch13.MapMode = "FlatFace"
sketch13.AttachmentOffset = App.Placement(App.Vector(0, 0, 4), App.Rotation())
sketch13.addGeometry(Part.Circle(App.Vector(17.741856, 13.304538, 0), App.Vector(0, 0, 1), 0.25), False)
sketch13.addGeometry(Part.Circle(App.Vector(17.741856, 14.897069, 0), App.Vector(0, 0, 1), 0.25), False)
sketch13.addConstraint(Sketcher.Constraint("Equal", 0, 1))
sketch13.addConstraint(Sketcher.Constraint("Vertical", 0, 3, 1, 3))
sketch13.addConstraint(Sketcher.Constraint("Diameter", 0, Q("0.5 mm")))
sketch13.addConstraint(Sketcher.Constraint("DistanceY", -1, 1, 1, 3, Q("14.897069 mm")))
sketch13.addConstraint(Sketcher.Constraint("DistanceY", 0, 3, 1, 3, Q("1.592531 mm")))
sketch13.addConstraint(Sketcher.Constraint("DistanceX", -1, 1, 0, 3, Q("17.741856 mm")))
pad12 = body.newObject("PartDesign::Pad", "Pad011")
pad12.Profile = sketch13
pad12.Length = 3
pad12.Reversed = True
doc.recompute()

fillet4 = body.newObject("PartDesign::Fillet", "Fillet003")
fillet4.Base = (pad12, edges_at(pad12, [(16.292, 14.101, 4.5), (16.292, 14.101, 8.5)]))
fillet4.Radius = 0.1
doc.recompute()

fillet5 = body.newObject("PartDesign::Fillet", "Fillet004")
fillet5.Base = (fillet4, edges_at(fillet4, [(9.962, -6.289, 4.5), (9.962, -6.289, 8.5)]))
fillet5.Radius = 0.1
doc.recompute()

fillet6 = body.newObject("PartDesign::Fillet", "Fillet005")
fillet6.Base = (fillet5, edges_at(fillet5, [(9.937, -17.543, 4.5), (9.937, -17.543, 8.5)]))
fillet6.Radius = 0.1

sketch14 = body.newObject("Sketcher::SketchObject", "Sketch013")
sketch14.AttachmentSupport = (doc.getObject("XY_Plane"), [""])
sketch14.MapMode = "FlatFace"
sketch14.AttachmentOffset = App.Placement(App.Vector(0, 0, 4), App.Rotation())
sketch14.addGeometry(Part.Circle(App.Vector(11.433493, -6.939172, 0), App.Vector(0, 0, 1), 0.25), False)
sketch14.addConstraint(Sketcher.Constraint("Diameter", 0, Q("0.5 mm")))
sketch14.addConstraint(Sketcher.Constraint("DistanceX", -1, 1, 0, 3, Q("11.433493 mm")))
sketch14.addConstraint(Sketcher.Constraint("DistanceY", 0, 3, -1, 1, Q("6.939172 mm")))
pad13 = body.newObject("PartDesign::Pad", "Pad012")
pad13.Profile = sketch14
pad13.Type = "UpToFirst"
pad13.Reversed = True

sketch15 = body.newObject("Sketcher::SketchObject", "Sketch014")
sketch15.AttachmentSupport = (doc.getObject("XY_Plane"), [""])
sketch15.MapMode = "FlatFace"
sketch15.AttachmentOffset = App.Placement(App.Vector(0, 0, 4), App.Rotation())
sketch15.addGeometry(Part.Circle(App.Vector(11.433493, -5.639009, 0), App.Vector(0, 0, 1), 0.25), False)
sketch15.addConstraint(Sketcher.Constraint("Diameter", 0, Q("0.5 mm")))
sketch15.addConstraint(Sketcher.Constraint("DistanceY", 0, 3, -1, 1, Q("5.639009 mm")))
sketch15.addConstraint(Sketcher.Constraint("DistanceX", -1, 1, 0, 3, Q("11.433493 mm")))
pad14 = body.newObject("PartDesign::Pad", "Pad013")
pad14.Profile = sketch15
pad14.Type = "UpToFirst"
pad14.Reversed = True

sketch16 = body.newObject("Sketcher::SketchObject", "Sketch015")
sketch16.AttachmentSupport = (doc.getObject("XY_Plane"), [""])
sketch16.MapMode = "FlatFace"
sketch16.AttachmentOffset = App.Placement(App.Vector(0, 0, 4), App.Rotation())
sketch16.addGeometry(Part.Circle(App.Vector(11.386564, -18.304415, 0), App.Vector(0, 0, 1), 0.25), False)
sketch16.addConstraint(Sketcher.Constraint("Diameter", 0, Q("0.5 mm")))
sketch16.addConstraint(Sketcher.Constraint("DistanceX", -1, 1, 0, 3, Q("11.386564 mm")))
sketch16.addConstraint(Sketcher.Constraint("DistanceY", 0, 3, -1, 1, Q("18.304415 mm")))
pad15 = body.newObject("PartDesign::Pad", "Pad014")
pad15.Profile = sketch16
pad15.Type = "UpToFirst"
pad15.Reversed = True

sketch17 = body.newObject("Sketcher::SketchObject", "Sketch016")
sketch17.AttachmentSupport = (doc.getObject("XY_Plane"), [""])
sketch17.MapMode = "FlatFace"
sketch17.AttachmentOffset = App.Placement(App.Vector(0, 0, 4), App.Rotation())
sketch17.addGeometry(Part.Circle(App.Vector(11.372381, -16.813623, 0), App.Vector(0, 0, 1), 0.25), False)
sketch17.addConstraint(Sketcher.Constraint("Diameter", 0, Q("0.5 mm")))
sketch17.addConstraint(Sketcher.Constraint("DistanceX", -1, 1, 0, 3, Q("11.372381 mm")))
sketch17.addConstraint(Sketcher.Constraint("DistanceY", 0, 3, -1, 1, Q("16.813623 mm")))
pad16 = body.newObject("PartDesign::Pad", "Pad015")
pad16.Profile = sketch17
pad16.Type = "UpToFirst"
pad16.Reversed = True

doc.recompute()
